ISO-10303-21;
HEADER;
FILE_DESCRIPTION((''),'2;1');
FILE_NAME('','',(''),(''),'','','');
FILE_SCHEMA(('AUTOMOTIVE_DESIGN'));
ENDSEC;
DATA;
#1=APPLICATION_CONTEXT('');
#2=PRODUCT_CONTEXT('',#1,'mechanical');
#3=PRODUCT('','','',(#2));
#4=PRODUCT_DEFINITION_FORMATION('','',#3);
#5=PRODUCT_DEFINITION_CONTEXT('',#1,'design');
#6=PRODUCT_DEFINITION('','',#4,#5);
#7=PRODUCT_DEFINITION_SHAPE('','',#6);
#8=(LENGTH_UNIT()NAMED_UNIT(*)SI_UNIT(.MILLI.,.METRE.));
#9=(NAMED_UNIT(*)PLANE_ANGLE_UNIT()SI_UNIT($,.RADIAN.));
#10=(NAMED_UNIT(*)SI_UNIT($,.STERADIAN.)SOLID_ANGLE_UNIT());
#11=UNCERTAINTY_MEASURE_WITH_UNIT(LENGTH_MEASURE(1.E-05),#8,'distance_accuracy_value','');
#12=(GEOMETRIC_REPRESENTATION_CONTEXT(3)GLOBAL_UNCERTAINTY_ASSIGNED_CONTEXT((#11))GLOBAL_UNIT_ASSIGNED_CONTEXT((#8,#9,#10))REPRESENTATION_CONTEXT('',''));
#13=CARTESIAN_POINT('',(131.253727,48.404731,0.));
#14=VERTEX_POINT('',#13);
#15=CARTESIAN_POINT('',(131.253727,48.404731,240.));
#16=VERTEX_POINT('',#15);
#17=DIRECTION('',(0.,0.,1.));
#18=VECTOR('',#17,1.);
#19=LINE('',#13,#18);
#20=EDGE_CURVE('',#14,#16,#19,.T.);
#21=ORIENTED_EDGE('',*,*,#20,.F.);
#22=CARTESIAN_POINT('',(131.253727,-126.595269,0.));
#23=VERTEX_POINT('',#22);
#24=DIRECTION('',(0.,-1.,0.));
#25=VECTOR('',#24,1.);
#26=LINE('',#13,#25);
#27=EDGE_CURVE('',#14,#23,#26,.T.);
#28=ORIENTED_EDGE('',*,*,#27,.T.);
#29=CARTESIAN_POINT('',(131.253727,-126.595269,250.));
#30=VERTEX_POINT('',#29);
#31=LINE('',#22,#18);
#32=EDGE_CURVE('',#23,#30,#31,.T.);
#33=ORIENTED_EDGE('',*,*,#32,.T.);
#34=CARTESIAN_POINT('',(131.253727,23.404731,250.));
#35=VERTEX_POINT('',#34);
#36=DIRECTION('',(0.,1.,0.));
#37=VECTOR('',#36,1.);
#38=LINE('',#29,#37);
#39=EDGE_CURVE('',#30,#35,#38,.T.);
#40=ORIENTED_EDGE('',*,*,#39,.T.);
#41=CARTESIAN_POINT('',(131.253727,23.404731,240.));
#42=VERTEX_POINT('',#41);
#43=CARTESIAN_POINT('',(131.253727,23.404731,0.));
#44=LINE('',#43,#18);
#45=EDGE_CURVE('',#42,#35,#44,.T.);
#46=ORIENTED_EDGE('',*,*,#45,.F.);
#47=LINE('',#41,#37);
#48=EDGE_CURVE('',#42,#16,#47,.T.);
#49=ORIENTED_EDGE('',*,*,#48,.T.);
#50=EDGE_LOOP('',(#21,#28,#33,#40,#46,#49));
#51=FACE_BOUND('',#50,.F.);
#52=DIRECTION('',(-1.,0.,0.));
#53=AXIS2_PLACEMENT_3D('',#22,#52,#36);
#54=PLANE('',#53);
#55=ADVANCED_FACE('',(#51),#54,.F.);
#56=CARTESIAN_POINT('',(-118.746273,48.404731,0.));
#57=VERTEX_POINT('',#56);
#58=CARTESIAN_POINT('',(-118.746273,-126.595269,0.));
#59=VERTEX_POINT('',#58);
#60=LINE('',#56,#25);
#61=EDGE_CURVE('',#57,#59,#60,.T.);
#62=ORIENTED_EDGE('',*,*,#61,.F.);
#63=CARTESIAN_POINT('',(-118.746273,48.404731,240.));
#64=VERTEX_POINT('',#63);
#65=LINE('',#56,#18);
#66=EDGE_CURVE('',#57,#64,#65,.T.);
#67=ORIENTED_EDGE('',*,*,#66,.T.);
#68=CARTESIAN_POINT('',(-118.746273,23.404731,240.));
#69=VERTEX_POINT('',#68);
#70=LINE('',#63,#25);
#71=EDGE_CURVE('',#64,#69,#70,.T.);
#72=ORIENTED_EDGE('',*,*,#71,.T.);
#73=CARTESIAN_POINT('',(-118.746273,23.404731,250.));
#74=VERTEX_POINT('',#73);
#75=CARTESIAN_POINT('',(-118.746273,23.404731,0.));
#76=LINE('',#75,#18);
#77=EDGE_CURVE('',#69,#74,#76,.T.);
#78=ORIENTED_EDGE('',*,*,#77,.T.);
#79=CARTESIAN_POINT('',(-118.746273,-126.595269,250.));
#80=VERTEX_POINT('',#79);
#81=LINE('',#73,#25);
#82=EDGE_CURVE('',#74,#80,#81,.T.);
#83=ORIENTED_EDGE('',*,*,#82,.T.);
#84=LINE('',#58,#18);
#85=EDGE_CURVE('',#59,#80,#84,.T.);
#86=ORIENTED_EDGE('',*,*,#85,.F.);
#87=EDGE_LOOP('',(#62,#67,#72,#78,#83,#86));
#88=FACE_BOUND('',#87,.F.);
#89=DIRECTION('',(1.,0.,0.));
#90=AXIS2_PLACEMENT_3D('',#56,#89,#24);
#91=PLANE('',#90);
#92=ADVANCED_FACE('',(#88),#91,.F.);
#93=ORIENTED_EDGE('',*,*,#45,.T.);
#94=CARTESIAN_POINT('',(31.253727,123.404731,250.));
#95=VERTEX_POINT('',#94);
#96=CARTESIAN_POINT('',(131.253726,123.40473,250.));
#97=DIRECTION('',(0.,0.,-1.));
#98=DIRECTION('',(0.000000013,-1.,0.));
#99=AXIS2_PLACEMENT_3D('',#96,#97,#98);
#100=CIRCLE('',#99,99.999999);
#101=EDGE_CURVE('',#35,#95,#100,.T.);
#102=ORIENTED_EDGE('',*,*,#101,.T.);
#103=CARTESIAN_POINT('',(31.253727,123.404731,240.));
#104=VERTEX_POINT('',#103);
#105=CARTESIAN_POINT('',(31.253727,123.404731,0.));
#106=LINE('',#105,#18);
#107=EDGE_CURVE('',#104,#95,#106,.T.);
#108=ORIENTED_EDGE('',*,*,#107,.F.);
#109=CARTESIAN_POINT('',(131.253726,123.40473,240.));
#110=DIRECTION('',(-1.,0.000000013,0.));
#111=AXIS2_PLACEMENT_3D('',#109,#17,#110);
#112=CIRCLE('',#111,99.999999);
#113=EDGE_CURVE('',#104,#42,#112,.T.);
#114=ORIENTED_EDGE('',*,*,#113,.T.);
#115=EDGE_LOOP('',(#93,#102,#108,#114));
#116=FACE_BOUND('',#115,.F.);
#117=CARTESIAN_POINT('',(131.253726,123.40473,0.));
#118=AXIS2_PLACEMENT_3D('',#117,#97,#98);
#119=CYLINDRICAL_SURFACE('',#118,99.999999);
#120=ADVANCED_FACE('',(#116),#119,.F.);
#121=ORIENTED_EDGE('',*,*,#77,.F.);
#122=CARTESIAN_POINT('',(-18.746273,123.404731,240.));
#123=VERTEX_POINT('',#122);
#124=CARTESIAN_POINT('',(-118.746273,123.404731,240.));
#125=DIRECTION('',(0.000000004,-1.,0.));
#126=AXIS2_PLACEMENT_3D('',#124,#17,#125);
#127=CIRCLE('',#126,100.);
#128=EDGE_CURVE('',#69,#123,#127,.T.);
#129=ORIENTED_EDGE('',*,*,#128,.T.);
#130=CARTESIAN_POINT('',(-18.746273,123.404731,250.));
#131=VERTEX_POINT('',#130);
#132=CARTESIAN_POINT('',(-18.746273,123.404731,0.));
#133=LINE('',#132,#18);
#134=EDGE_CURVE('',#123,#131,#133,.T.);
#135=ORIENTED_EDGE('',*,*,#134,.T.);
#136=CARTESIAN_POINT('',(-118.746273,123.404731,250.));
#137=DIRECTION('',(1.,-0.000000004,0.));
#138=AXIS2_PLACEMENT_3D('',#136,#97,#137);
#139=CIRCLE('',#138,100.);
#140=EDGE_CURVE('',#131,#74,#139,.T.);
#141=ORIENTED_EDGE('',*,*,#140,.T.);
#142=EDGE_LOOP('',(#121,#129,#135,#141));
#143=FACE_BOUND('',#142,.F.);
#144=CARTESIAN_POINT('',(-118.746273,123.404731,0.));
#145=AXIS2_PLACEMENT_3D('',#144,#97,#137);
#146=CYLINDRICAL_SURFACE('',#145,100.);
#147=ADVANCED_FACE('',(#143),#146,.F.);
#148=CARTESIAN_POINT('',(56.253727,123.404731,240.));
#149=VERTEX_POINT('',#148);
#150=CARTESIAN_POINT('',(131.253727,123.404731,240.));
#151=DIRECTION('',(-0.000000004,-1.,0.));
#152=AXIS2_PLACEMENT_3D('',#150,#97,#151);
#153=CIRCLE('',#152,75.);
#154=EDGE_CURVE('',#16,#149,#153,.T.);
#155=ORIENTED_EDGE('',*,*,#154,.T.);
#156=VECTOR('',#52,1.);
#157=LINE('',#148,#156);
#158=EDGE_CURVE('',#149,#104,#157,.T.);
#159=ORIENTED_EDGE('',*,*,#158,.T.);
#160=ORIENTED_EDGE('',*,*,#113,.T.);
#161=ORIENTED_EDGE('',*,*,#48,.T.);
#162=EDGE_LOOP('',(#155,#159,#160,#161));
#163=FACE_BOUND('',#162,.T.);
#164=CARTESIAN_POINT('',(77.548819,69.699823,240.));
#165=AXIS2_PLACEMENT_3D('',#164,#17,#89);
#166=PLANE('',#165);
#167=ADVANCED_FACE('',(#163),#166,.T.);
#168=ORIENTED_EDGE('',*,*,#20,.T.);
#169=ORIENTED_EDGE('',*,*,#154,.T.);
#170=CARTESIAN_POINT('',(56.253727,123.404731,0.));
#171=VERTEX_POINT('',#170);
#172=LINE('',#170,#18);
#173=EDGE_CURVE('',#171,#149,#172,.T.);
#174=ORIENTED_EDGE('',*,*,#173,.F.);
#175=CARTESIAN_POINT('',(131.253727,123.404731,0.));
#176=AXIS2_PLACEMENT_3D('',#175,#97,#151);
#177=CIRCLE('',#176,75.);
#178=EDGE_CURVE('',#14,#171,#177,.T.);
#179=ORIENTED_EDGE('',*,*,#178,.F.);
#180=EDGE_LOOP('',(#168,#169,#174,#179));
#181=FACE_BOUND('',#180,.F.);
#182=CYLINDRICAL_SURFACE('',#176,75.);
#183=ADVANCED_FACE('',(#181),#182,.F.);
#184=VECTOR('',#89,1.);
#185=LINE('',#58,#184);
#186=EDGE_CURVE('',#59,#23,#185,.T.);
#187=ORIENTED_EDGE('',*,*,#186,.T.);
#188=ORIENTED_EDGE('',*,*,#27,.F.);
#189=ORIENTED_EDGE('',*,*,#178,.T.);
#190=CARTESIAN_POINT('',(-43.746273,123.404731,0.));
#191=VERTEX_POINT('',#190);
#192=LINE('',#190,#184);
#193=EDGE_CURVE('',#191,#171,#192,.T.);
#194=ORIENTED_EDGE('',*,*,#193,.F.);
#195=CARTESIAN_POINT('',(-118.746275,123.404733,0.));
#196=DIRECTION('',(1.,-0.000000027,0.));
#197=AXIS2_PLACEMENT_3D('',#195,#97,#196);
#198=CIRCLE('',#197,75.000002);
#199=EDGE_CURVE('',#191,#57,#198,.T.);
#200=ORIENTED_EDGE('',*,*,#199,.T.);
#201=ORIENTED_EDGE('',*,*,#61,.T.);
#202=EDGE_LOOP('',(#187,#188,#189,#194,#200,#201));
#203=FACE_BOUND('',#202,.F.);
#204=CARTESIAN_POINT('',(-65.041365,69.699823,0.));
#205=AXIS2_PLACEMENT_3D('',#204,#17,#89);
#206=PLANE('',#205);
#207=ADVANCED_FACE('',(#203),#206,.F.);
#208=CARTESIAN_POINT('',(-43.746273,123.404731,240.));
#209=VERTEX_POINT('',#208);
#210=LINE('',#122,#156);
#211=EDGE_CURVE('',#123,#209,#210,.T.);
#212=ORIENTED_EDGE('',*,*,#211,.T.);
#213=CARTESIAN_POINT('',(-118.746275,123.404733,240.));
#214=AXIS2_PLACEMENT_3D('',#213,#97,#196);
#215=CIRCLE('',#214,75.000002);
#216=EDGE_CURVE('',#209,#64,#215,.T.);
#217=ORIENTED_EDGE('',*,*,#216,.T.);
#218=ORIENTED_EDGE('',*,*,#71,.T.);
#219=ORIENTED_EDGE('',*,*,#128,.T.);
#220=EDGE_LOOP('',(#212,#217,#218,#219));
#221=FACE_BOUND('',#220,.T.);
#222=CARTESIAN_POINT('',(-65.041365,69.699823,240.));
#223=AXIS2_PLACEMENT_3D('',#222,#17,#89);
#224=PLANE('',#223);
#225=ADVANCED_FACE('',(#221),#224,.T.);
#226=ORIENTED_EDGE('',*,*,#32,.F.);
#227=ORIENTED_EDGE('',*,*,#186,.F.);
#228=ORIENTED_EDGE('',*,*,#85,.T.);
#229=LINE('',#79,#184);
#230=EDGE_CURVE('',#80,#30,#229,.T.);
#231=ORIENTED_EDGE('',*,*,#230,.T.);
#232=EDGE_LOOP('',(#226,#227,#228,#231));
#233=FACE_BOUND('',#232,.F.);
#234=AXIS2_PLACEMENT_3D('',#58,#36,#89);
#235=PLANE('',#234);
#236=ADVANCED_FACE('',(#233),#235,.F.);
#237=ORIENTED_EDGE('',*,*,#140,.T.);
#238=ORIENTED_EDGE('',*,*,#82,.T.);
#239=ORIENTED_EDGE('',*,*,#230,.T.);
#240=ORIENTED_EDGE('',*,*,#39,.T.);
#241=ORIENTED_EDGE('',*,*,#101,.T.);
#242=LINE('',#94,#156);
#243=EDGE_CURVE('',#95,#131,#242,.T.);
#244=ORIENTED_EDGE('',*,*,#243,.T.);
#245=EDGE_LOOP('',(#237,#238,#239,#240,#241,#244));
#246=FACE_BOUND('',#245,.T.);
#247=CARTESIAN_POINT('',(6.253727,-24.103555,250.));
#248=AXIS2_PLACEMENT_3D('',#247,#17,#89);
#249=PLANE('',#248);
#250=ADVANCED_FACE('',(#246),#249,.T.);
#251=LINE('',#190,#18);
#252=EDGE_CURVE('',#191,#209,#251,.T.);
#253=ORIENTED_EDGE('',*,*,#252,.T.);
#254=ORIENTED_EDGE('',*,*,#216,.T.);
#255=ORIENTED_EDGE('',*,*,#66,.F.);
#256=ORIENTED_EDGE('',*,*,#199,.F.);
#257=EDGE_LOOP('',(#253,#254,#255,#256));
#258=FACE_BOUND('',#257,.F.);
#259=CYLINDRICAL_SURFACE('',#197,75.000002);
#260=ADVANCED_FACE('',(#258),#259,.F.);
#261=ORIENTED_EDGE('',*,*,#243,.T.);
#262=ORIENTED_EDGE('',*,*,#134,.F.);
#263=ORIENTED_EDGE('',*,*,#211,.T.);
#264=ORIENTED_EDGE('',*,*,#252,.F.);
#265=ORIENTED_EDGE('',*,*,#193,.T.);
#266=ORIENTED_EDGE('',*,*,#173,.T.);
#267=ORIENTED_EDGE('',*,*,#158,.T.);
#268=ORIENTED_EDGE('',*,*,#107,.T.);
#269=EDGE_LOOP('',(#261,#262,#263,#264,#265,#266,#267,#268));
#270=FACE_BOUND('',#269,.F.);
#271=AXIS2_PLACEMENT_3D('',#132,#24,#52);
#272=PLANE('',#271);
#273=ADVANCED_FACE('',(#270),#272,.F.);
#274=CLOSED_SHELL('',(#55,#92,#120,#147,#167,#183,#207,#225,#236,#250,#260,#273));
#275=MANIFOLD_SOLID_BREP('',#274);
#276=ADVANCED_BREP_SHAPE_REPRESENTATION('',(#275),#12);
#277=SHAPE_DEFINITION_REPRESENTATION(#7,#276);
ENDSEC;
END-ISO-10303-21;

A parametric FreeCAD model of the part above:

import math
import FreeCAD as App
import Part
import Sketcher

V = App.Vector

doc = App.newDocument("Part")
body = doc.addObject("PartDesign::Body", "Body")

# Sketch on XY plane
sketch1 = body.newObject("Sketcher::SketchObject", "Sketch")
sketch1.AttachmentSupport = (doc.getObject("XY_Plane"), [""])
sketch1.MapMode = "FlatFace"
sketch1.addGeometry(Part.LineSegment(V(-119, -127, 0), V(131, -127, 0)), False)
sketch1.addGeometry(Part.LineSegment(V(131, -127, 0), V(131, 23, 0)), False)
sketch1.addGeometry(Part.ArcOfCircle(Part.Circle(V(131, 123, 0), V(0, 0, 1), 100), math.radians(180), math.radians(270)), False)
sketch1.addGeometry(Part.LineSegment(V(31, 123, 0), V(-19, 123, 0)), False)
sketch1.addGeometry(Part.ArcOfCircle(Part.Circle(V(-119, 123, 0), V(0, 0, 1), 100), math.radians(-90), math.radians(0)), False)
sketch1.addGeometry(Part.LineSegment(V(-119, 23, 0), V(-119, -127, 0)), False)
sketch1.addConstraint(Sketcher.Constraint("Coincident", 0, 2, 1, 1))
sketch1.addConstraint(Sketcher.Constraint("Coincident", 1, 2, 2, 2))
sketch1.addConstraint(Sketcher.Constraint("Coincident", 2, 1, 3, 1))
sketch1.addConstraint(Sketcher.Constraint("Coincident", 3, 2, 4, 2))
sketch1.addConstraint(Sketcher.Constraint("Coincident", 4, 1, 5, 1))
sketch1.addConstraint(Sketcher.Constraint("Coincident", 5, 2, 0, 1))
sketch1.addConstraint(Sketcher.Constraint("Horizontal", 0))
sketch1.addConstraint(Sketcher.Constraint("Vertical", 1))
sketch1.addConstraint(Sketcher.Constraint("Horizontal", 3))
sketch1.addConstraint(Sketcher.Constraint("Vertical", 5))
sketch1.addConstraint(Sketcher.Constraint("Equal", 2, 4))
sketch1.addConstraint(Sketcher.Constraint("Horizontal", 2, 3, 4, 3))
sketch1.addConstraint(Sketcher.Constraint("Horizontal", 4, 3, 2, 1))
sketch1.addConstraint(Sketcher.Constraint("Vertical", 2, 3, 0, 2))
sketch1.addConstraint(Sketcher.Constraint("Radius", 2, 99.999999))
sketch1.addConstraint(Sketcher.Constraint("DistanceX", 0, 1, 0, 2, 250.0))
sketch1.addConstraint(Sketcher.Constraint("DistanceX", 3, 2, 3, 1, 50.0))
sketch1.addConstraint(Sketcher.Constraint("DistanceY", 1, 1, 1, 2, 150.0))
sketch1.addConstraint(Sketcher.Constraint("DistanceY", -1, 1, 2, 3, 123.40473))
sketch1.addConstraint(Sketcher.Constraint("DistanceX", -1, 1, 2, 3, 131.253726))
pad1 = body.newObject("PartDesign::Pad", "Pad")
pad1.Profile = sketch1
pad1.Length = 250

# Sketch on XY plane
sketch2 = body.newObject("Sketcher::SketchObject", "Sketch001")
sketch2.AttachmentSupport = (doc.getObject("XY_Plane"), [""])
sketch2.MapMode = "FlatFace"
sketch2.addGeometry(Part.LineSegment(V(-119, 48, 0), V(-119, 23, 0)), False)
sketch2.addGeometry(Part.ArcOfCircle(Part.Circle(V(-119, 123, 0), V(0, 0, 1), 100), math.radians(-90), math.radians(0)), False)
sketch2.addGeometry(Part.LineSegment(V(-19, 123, 0), V(-44, 123, 0)), False)
sketch2.addGeometry(Part.ArcOfCircle(Part.Circle(V(-119, 123, 0), V(0, 0, 1), 75), math.radians(-90), math.radians(0)), False)
sketch2.addGeometry(Part.LineSegment(V(56, 123, 0), V(31, 123, 0)), False)
sketch2.addGeometry(Part.ArcOfCircle(Part.Circle(V(131, 123, 0), V(0, 0, 1), 100), math.radians(180), math.radians(270)), False)
sketch2.addGeometry(Part.LineSegment(V(131, 23, 0), V(131, 48, 0)), False)
sketch2.addGeometry(Part.ArcOfCircle(Part.Circle(V(131, 123, 0), V(0, 0, 1), 75), math.radians(-180), math.radians(-90)), False)
sketch2.addConstraint(Sketcher.Constraint("Coincident", 0, 2, 1, 1))
sketch2.addConstraint(Sketcher.Constraint("Coincident", 1, 2, 2, 1))
sketch2.addConstraint(Sketcher.Constraint("Coincident", 2, 2, 3, 2))
sketch2.addConstraint(Sketcher.Constraint("Coincident", 3, 1, 0, 1))
sketch2.addConstraint(Sketcher.Constraint("Coincident", 4, 2, 5, 1))
sketch2.addConstraint(Sketcher.Constraint("Coincident", 5, 2, 6, 1))
sketch2.addConstraint(Sketcher.Constraint("Coincident", 6, 2, 7, 2))
sketch2.addConstraint(Sketcher.Constraint("Coincident", 7, 1, 4, 1))
sketch2.addConstraint(Sketcher.Constraint("Vertical", 0))
sketch2.addConstraint(Sketcher.Constraint("Horizontal", 2))
sketch2.addConstraint(Sketcher.Constraint("Horizontal", 4))
sketch2.addConstraint(Sketcher.Constraint("Vertical", 6))
sketch2.addConstraint(Sketcher.Constraint("Coincident", 3, 3, 1, 3))
sketch2.addConstraint(Sketcher.Constraint("Coincident", 7, 3, 5, 3))
sketch2.addConstraint(Sketcher.Constraint("Equal", 1, 5))
sketch2.addConstraint(Sketcher.Constraint("Equal", 3, 7))
sketch2.addConstraint(Sketcher.Constraint("Horizontal", 1, 3, 5, 3))
sketch2.addConstraint(Sketcher.Constraint("Horizontal", 7, 3, 1, 2))
sketch2.addConstraint(Sketcher.Constraint("Horizontal", 2, 2, 4, 2))
sketch2.addConstraint(Sketcher.Constraint("Vertical", 1, 3, 0, 2))
sketch2.addConstraint(Sketcher.Constraint("Vertical", 7, 3, 5, 2))
sketch2.addConstraint(Sketcher.Constraint("Radius", 1, 100.0))
sketch2.addConstraint(Sketcher.Constraint("Radius", 7, 75.0))
sketch2.addConstraint(Sketcher.Constraint("DistanceX", 1, 3, 5, 3, 249.999999))
sketch2.addConstraint(Sketcher.Constraint("DistanceY", -1, 1, 1, 3, 123.404731))
sketch2.addConstraint(Sketcher.Constraint("DistanceX", 1, 3, -1, 1, 118.746273))
pad2 = body.newObject("PartDesign::Pad", "Pad001")
pad2.Profile = sketch2
pad2.Length = 240

doc.recompute()
